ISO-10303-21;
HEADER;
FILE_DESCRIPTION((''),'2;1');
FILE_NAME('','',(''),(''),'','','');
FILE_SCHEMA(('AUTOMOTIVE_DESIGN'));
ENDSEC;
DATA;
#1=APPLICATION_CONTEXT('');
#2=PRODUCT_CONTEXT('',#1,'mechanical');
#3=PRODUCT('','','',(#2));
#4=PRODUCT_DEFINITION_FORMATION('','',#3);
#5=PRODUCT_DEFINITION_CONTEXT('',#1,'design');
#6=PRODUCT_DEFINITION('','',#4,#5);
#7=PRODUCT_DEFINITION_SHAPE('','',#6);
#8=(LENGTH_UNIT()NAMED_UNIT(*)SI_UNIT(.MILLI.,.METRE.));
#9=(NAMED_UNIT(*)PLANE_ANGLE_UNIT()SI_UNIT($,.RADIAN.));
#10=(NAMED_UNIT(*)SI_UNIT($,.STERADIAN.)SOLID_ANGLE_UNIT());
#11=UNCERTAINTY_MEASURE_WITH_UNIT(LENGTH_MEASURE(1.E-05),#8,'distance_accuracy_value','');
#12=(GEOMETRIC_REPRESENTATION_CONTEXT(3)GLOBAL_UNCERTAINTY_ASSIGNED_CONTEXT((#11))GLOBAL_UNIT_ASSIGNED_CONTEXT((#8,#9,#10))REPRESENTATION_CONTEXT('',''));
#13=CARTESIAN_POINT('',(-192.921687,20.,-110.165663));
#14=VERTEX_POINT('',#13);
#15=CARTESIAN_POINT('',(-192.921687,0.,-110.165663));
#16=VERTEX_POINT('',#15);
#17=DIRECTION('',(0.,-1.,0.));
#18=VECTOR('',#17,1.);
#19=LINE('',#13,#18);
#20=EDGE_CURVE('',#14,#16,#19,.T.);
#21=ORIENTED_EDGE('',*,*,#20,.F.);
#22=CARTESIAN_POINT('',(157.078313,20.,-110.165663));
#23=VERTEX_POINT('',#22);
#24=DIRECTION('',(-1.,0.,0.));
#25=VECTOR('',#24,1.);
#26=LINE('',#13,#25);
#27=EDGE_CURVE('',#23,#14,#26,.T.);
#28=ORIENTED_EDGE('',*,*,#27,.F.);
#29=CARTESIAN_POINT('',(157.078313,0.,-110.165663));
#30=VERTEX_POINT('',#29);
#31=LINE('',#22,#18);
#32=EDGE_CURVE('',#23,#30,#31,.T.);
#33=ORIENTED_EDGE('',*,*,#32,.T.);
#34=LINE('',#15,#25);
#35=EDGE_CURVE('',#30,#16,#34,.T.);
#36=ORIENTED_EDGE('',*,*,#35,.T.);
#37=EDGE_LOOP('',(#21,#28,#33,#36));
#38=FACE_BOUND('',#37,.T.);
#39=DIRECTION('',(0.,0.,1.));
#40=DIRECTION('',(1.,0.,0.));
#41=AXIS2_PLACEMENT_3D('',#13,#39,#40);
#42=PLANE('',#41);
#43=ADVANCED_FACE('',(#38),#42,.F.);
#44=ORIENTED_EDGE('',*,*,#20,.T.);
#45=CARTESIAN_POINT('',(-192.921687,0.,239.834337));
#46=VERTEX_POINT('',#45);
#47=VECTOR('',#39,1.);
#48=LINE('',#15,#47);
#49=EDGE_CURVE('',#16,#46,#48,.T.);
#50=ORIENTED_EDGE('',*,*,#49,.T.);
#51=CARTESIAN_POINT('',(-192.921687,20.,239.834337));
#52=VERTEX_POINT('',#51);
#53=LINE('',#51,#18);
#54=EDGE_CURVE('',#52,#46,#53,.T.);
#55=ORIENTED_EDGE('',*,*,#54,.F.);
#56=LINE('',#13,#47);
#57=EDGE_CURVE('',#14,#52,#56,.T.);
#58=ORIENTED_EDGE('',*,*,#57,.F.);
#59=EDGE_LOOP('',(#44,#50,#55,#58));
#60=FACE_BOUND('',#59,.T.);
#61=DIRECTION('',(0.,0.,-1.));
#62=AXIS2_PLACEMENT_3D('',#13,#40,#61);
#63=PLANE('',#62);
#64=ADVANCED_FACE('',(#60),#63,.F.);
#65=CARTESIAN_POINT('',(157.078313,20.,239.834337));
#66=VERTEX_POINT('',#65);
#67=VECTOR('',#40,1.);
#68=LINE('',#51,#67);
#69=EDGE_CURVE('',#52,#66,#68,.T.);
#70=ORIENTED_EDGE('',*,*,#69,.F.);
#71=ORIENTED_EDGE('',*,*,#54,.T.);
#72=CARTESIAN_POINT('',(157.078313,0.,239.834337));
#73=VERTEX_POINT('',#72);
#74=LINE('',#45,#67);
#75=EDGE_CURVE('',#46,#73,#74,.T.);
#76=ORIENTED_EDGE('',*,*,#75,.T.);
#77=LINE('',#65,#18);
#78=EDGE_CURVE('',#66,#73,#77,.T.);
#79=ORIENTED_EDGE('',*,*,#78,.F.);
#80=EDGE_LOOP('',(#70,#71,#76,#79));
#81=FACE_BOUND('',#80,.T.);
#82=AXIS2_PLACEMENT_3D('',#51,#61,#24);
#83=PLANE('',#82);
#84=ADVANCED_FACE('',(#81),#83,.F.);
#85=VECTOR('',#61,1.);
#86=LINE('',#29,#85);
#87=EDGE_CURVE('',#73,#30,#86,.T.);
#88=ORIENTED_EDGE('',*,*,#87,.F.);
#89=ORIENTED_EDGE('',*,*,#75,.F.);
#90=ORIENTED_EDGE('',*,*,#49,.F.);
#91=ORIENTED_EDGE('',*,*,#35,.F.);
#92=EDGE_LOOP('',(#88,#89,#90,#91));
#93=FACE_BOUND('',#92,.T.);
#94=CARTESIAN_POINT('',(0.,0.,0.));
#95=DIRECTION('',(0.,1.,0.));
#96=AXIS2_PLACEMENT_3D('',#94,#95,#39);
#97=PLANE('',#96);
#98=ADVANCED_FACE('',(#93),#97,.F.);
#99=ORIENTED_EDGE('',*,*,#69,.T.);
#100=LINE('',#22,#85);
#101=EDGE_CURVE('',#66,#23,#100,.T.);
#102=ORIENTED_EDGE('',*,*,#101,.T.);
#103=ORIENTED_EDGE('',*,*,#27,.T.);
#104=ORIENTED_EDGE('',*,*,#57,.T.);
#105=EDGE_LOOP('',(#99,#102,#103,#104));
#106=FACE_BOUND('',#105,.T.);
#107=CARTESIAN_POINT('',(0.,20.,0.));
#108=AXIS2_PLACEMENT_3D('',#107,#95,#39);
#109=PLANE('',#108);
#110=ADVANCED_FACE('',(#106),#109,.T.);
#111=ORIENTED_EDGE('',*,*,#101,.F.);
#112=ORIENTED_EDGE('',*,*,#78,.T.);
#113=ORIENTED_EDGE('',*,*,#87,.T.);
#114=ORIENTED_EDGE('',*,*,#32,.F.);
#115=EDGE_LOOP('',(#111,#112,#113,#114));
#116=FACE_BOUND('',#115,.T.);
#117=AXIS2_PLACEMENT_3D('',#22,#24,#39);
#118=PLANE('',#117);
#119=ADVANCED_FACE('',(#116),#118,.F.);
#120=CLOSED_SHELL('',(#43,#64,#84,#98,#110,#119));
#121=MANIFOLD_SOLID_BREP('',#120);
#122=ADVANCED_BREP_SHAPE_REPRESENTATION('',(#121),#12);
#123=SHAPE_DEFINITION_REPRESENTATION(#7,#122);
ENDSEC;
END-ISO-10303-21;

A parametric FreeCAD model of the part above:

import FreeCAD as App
import Part
import Sketcher

doc = App.newDocument("Part")
body = doc.addObject("PartDesign::Body", "Body")

sketch1 = doc.addObject("Sketcher::SketchObject", "Sketch")
body.addObject(sketch1)
sketch1.AttachmentSupport = (doc.XZ_Plane, [""])
sketch1.MapMode = "FlatFace"
sketch1.addGeometry([
    Part.LineSegment(App.Vector(-193, -110, 0), App.Vector(-193, 240, 0)),
    Part.LineSegment(App.Vector(-193, 240, 0), App.Vector(157, 240, 0)),
    Part.LineSegment(App.Vector(157, 240, 0), App.Vector(157, -110, 0)),
    Part.LineSegment(App.Vector(157, -110, 0), App.Vector(-193, -110, 0)),
], False)
sketch1.addConstraint([
    Sketcher.Constraint("Coincident", 0, 2, 1, 1),
    Sketcher.Constraint("Coincident", 1, 2, 2, 1),
    Sketcher.Constraint("Coincident", 2, 2, 3, 1),
    Sketcher.Constraint("Coincident", 3, 2, 0, 1),
    Sketcher.Constraint("Vertical", 0),
    Sketcher.Constraint("Horizontal", 1),
    Sketcher.Constraint("Vertical", 2),
    Sketcher.Constraint("Horizontal", 3),
    Sketcher.Constraint("Equal", 3, 0),
    Sketcher.Constraint("DistanceX", 1, 1, 1, 2, 350.0),
    Sketcher.Constraint("DistanceX", 0, 2, -1, 1, 192.921687),
    Sketcher.Constraint("DistanceY", -1, 1, 0, 2, 239.834337),
])
pad1 = doc.addObject("PartDesign::Pad", "Pad")
body.addObject(pad1)
pad1.Profile = sketch1
pad1.Length = 20
pad1.Reversed = True

doc.recompute()
